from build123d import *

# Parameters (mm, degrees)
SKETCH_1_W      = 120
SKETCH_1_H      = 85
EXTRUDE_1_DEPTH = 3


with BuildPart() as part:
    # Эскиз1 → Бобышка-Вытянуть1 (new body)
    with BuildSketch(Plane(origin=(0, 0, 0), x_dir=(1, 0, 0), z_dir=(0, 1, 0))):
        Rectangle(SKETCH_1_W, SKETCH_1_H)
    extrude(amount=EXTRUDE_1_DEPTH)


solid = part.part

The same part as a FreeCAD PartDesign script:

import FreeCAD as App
import Part
import Sketcher

V = App.Vector


def add_polygon(sketch, points):
    """Adds a closed chain of lines whose ends are joined by coincident constraints."""
    first, n = sketch.GeometryCount, len(points)
    for a, b in zip(points, points[1:] + points[:1]):
        sketch.addGeometry(Part.LineSegment(App.Vector(*a, 0), App.Vector(*b, 0)), False)
    for i in range(n):
        sketch.addConstraint(Sketcher.Constraint("Coincident", first + i, 2, first + (i + 1) % n, 1))

doc = App.newDocument("Part")
body = doc.addObject("PartDesign::Body", "Body")

# Sketch on XZ plane
sketch1 = body.newObject("Sketcher::SketchObject", "Sketch")
sketch1.AttachmentSupport = (doc.getObject("XZ_Plane"), [""])
sketch1.MapMode = "FlatFace"
add_polygon(sketch1, [(-60, -42), (-60, 42), (60, 42), (60, -42)])  # lines 0-3
sketch1.addConstraint([
    Sketcher.Constraint("Vertical", 0),
    Sketcher.Constraint("Horizontal", 1),
    Sketcher.Constraint("Vertical", 2),
    Sketcher.Constraint("Horizontal", 3),
    Sketcher.Constraint("Symmetric", 0, 2, 2, 2, -1, 1),
    Sketcher.Constraint("DistanceX", 1, 1, 1, 2, 120.0),
    Sketcher.Constraint("DistanceY", 0, 1, 0, 2, 85.0),
])
pad1 = body.newObject("PartDesign::Pad", "Pad")
pad1.Profile = sketch1
pad1.Length = 3
pad1.Reversed = True

doc.recompute()
